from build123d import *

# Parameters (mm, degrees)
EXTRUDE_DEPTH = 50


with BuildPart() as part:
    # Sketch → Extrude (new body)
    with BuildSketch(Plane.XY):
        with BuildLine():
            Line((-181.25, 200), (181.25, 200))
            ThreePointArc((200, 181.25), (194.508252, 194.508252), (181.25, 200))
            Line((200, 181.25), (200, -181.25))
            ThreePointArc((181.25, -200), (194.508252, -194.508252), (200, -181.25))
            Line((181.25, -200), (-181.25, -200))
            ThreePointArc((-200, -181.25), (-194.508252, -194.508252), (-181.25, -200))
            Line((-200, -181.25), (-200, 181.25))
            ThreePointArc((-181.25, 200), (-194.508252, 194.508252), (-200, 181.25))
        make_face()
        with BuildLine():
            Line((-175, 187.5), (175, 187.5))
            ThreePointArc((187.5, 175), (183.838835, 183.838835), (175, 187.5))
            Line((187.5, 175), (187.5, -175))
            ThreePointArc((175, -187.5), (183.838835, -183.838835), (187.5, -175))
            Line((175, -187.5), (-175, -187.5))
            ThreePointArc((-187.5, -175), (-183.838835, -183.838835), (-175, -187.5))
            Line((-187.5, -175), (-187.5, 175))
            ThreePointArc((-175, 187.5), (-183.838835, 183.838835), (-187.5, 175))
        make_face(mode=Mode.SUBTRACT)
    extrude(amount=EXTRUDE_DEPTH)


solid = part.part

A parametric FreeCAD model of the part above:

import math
import FreeCAD as App
import Part
import Sketcher
Q = App.Units.Quantity

doc = App.newDocument("Part")
params = doc.addObject("Spreadsheet::Sheet", "Params")
for row, (alias, value) in enumerate([
    ("sketch1_radius", "12.499999 mm"),
    ("sketch1_width", "350 mm"),
    ("sketch1_radius2", "18.750001 mm"),
    ("sketch1_width2", "362.5 mm"),
    ("pad1_length", "50 mm"),
], start=1):
    params.set(f"A{row}", alias)
    params.set(f"B{row}", "=" + value)
    params.setAlias(f"B{row}", alias)

body = doc.addObject("PartDesign::Body", "Body")

# Sketch on XY plane
sketch1 = body.newObject("Sketcher::SketchObject", "Sketch")
sketch1.AttachmentSupport = (doc.getObject("XY_Plane"), [""])
sketch1.MapMode = "FlatFace"
sketch1.addGeometry([
    Part.LineSegment(App.Vector(181, 200, 0), App.Vector(-181, 200, 0)),  # 0
    Part.ArcOfCircle(Part.Circle(App.Vector(-181, 181, 0), App.Vector(0, 0, 1), 19), math.radians(90), math.radians(180)),  # 1
    Part.LineSegment(App.Vector(-200, 181, 0), App.Vector(-200, -181, 0)),  # 2
    Part.ArcOfCircle(Part.Circle(App.Vector(-181, -181, 0), App.Vector(0, 0, 1), 19), math.radians(-180), math.radians(-90)),  # 3
    Part.LineSegment(App.Vector(-181, -200, 0), App.Vector(181, -200, 0)),  # 4
    Part.ArcOfCircle(Part.Circle(App.Vector(181, -181, 0), App.Vector(0, 0, 1), 19), math.radians(-90), math.radians(0)),  # 5
    Part.LineSegment(App.Vector(200, -181, 0), App.Vector(200, 181, 0)),  # 6
    Part.ArcOfCircle(Part.Circle(App.Vector(181, 181, 0), App.Vector(0, 0, 1), 19), math.radians(0), math.radians(90)),  # 7
    Part.LineSegment(App.Vector(-175, 188, 0), App.Vector(175, 188, 0)),  # 8
    Part.ArcOfCircle(Part.Circle(App.Vector(175, 175, 0), App.Vector(0, 0, 1), 12), math.radians(0), math.radians(90)),  # 9
    Part.LineSegment(App.Vector(188, 175, 0), App.Vector(188, -175, 0)),  # 10
    Part.ArcOfCircle(Part.Circle(App.Vector(175, -175, 0), App.Vector(0, 0, 1), 12), math.radians(-90), math.radians(0)),  # 11
    Part.LineSegment(App.Vector(175, -188, 0), App.Vector(-175, -188, 0)),  # 12
    Part.ArcOfCircle(Part.Circle(App.Vector(-175, -175, 0), App.Vector(0, 0, 1), 12), math.radians(180), math.radians(270)),  # 13
    Part.LineSegment(App.Vector(-188, -175, 0), App.Vector(-188, 175, 0)),  # 14
    Part.ArcOfCircle(Part.Circle(App.Vector(-175, 175, 0), App.Vector(0, 0, 1), 12), math.radians(90), math.radians(180)),  # 15
], False)
sketch1.addConstraint([
    Sketcher.Constraint("Tangent", 0, 2, 1, 1),
    Sketcher.Constraint("Tangent", 1, 2, 2, 1),
    Sketcher.Constraint("Tangent", 2, 2, 3, 1),
    Sketcher.Constraint("Tangent", 3, 2, 4, 1),
    Sketcher.Constraint("Tangent", 4, 2, 5, 1),
    Sketcher.Constraint("Tangent", 5, 2, 6, 1),
    Sketcher.Constraint("Tangent", 6, 2, 7, 1),
    Sketcher.Constraint("Tangent", 7, 2, 0, 1),
    Sketcher.Constraint("Tangent", 8, 2, 9, 2),
    Sketcher.Constraint("Tangent", 9, 1, 10, 1),
    Sketcher.Constraint("Tangent", 10, 2, 11, 2),
    Sketcher.Constraint("Tangent", 11, 1, 12, 1),
    Sketcher.Constraint("Tangent", 12, 2, 13, 2),
    Sketcher.Constraint("Tangent", 13, 1, 14, 1),
    Sketcher.Constraint("Tangent", 14, 2, 15, 2),
    Sketcher.Constraint("Tangent", 15, 1, 8, 1),
    Sketcher.Constraint("Horizontal", 0),
    Sketcher.Constraint("Vertical", 2),
    Sketcher.Constraint("Horizontal", 4),
    Sketcher.Constraint("Vertical", 6),
    Sketcher.Constraint("Horizontal", 8),
    Sketcher.Constraint("Vertical", 10),
    Sketcher.Constraint("Horizontal", 12),
    Sketcher.Constraint("Vertical", 14),
    Sketcher.Constraint("Equal", 1, 3),
    Sketcher.Constraint("Equal", 3, 5),
    Sketcher.Constraint("Equal", 5, 7),
    Sketcher.Constraint("Equal", 9, 11),
    Sketcher.Constraint("Equal", 11, 13),
    Sketcher.Constraint("Equal", 13, 15),
    Sketcher.Constraint("Symmetric", 1, 3, 5, 3, -1, 1),
    Sketcher.Constraint("Symmetric", 9, 3, 13, 3, -1, 1),
    Sketcher.Constraint("Equal", 4, 2),
    Sketcher.Constraint("Equal", 12, 10),
    Sketcher.Constraint("Radius", 9, Q("12.499999 mm")),
    Sketcher.Constraint("DistanceX", 8, 1, 8, 2, Q("350 mm")),
    Sketcher.Constraint("Radius", 1, Q("18.750001 mm")),
    Sketcher.Constraint("DistanceX", 0, 2, 0, 1, Q("362.5 mm")),
])
sketch1.setExpression("Constraints[34]", "Params.sketch1_radius")
sketch1.setExpression("Constraints[35]", "Params.sketch1_width")
sketch1.setExpression("Constraints[36]", "Params.sketch1_radius2")
sketch1.setExpression("Constraints[37]", "Params.sketch1_width2")
pad1 = body.newObject("PartDesign::Pad", "Pad")
pad1.Profile = sketch1
pad1.setExpression("Length", "Params.pad1_length")

doc.recompute()
